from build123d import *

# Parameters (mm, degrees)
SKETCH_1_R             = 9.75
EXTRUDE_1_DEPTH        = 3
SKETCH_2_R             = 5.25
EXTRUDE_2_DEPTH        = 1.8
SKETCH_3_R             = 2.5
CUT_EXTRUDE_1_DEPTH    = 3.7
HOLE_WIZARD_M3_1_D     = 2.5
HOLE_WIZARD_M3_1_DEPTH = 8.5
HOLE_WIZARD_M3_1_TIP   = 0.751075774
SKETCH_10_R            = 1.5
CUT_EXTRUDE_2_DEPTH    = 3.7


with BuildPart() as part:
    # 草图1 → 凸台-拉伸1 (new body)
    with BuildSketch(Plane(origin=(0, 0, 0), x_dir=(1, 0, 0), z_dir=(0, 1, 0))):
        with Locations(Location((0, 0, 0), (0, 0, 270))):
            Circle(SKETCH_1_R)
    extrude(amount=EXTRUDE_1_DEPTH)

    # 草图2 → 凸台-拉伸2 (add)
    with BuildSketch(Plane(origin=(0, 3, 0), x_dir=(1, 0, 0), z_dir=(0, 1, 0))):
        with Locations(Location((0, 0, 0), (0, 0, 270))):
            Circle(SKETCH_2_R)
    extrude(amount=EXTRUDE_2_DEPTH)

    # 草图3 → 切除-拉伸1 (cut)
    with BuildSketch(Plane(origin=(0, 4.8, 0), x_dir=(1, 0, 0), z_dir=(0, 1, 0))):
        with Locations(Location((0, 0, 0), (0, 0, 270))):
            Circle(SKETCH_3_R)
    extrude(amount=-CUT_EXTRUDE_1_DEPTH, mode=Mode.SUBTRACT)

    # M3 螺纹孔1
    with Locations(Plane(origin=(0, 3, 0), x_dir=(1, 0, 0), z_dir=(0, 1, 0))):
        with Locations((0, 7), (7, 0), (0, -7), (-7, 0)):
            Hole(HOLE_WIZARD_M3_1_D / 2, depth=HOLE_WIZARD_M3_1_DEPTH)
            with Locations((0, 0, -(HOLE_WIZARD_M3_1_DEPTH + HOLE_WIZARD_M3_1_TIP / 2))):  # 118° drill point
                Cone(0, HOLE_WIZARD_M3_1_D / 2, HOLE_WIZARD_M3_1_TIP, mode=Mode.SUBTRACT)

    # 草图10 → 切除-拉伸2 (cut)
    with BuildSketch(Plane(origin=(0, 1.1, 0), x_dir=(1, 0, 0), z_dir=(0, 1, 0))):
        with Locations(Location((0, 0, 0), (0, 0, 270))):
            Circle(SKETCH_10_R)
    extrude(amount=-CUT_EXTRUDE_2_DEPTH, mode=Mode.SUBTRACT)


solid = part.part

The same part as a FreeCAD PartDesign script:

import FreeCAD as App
import Part
import Sketcher

V = App.Vector
Q = App.Units.Quantity

doc = App.newDocument("Part")
body = doc.addObject("PartDesign::Body", "Body")

# Sketch on XZ plane
sketch1 = doc.addObject("Sketcher::SketchObject", "Sketch")
body.addObject(sketch1)
sketch1.AttachmentSupport = (doc.XZ_Plane, [""])
sketch1.MapMode = "FlatFace"
sketch1.addGeometry(Part.Circle(V(0, 0, 0), V(0, 0, 1), 10), False)
sketch1.addConstraint(Sketcher.Constraint("Coincident", 0, 3, -1, 1))
sketch1.addConstraint(Sketcher.Constraint("Diameter", 0, Q("19.5 mm")))
pad1 = doc.addObject("PartDesign::Pad", "Pad")
body.addObject(pad1)
pad1.Profile = sketch1
pad1.Length = 3
pad1.Reversed = True

# Sketch on XZ plane
sketch2 = doc.addObject("Sketcher::SketchObject", "Sketch001")
body.addObject(sketch2)
sketch2.AttachmentSupport = (doc.XZ_Plane, [""])
sketch2.MapMode = "FlatFace"
sketch2.AttachmentOffset = App.Placement(V(0, 0, -3), App.Rotation())
sketch2.addGeometry(Part.Circle(V(0, 0, 0), V(0, 0, 1), 5), False)
sketch2.addConstraint(Sketcher.Constraint("Coincident", 0, 3, -1, 1))
sketch2.addConstraint(Sketcher.Constraint("Diameter", 0, Q("10.5 mm")))
pad2 = doc.addObject("PartDesign::Pad", "Pad001")
body.addObject(pad2)
pad2.Profile = sketch2
pad2.Length = 1.8
pad2.Reversed = True

# Sketch on XZ plane
sketch3 = doc.addObject("Sketcher::SketchObject", "Sketch002")
body.addObject(sketch3)
sketch3.AttachmentSupport = (doc.XZ_Plane, [""])
sketch3.MapMode = "FlatFace"
sketch3.AttachmentOffset = App.Placement(V(0, 0, -4.8), App.Rotation())
sketch3.addGeometry(Part.Circle(V(0, 0, 0), V(0, 0, 1), 2.5), False)
sketch3.addConstraint(Sketcher.Constraint("Coincident", 0, 3, -1, 1))
sketch3.addConstraint(Sketcher.Constraint("Diameter", 0, Q("5 mm")))
pocket1 = doc.addObject("PartDesign::Pocket", "Pocket")
body.addObject(pocket1)
pocket1.Profile = sketch3
pocket1.Length = 3.7
pocket1.Reversed = True

# Sketch on XZ plane
sketch4 = doc.addObject("Sketcher::SketchObject", "Sketch003")
body.addObject(sketch4)
sketch4.AttachmentSupport = (doc.XZ_Plane, [""])
sketch4.MapMode = "FlatFace"
sketch4.AttachmentOffset = App.Placement(V(0, 0, -3), App.Rotation())
sketch4.addGeometry(Part.Circle(V(0, -7, 0), V(0, 0, 1), 1.2), False)
sketch4.addGeometry(Part.Circle(V(7, 0, 0), V(0, 0, 1), 1.2), False)
sketch4.addGeometry(Part.Circle(V(0, 7, 0), V(0, 0, 1), 1.2), False)
sketch4.addGeometry(Part.Circle(V(-7, 0, 0), V(0, 0, 1), 1.2), False)
sketch4.addConstraint(Sketcher.Constraint("Equal", 0, 1))
sketch4.addConstraint(Sketcher.Constraint("Equal", 1, 2))
sketch4.addConstraint(Sketcher.Constraint("Equal", 2, 3))
sketch4.addConstraint(Sketcher.Constraint("Symmetric", 0, 3, 2, 3, -1, 1))
sketch4.addConstraint(Sketcher.Constraint("Symmetric", 1, 3, 3, 3, -1, 1))
sketch4.addConstraint(Sketcher.Constraint("PointOnObject", 0, 3, -2))
sketch4.addConstraint(Sketcher.Constraint("PointOnObject", 1, 3, -1))
sketch4.addConstraint(Sketcher.Constraint("Diameter", 0, Q("2.5 mm")))
sketch4.addConstraint(Sketcher.Constraint("DistanceY", 0, 3, -1, 1, Q("7 mm")))
sketch4.addConstraint(Sketcher.Constraint("DistanceX", -1, 1, 1, 3, Q("7 mm")))
doc.recompute()
hole = doc.addObject("PartDesign::Hole", "Hole")
body.addObject(hole)
hole.Profile = sketch4
hole.ThreadType = "None"
hole.Diameter = 2.5
hole.DepthType = "Dimension"
hole.Depth = 8.5
hole.DrillPoint = "Angled"
hole.DrillPointAngle = 118
hole.Reversed = True

# Sketch on XZ plane
sketch5 = doc.addObject("Sketcher::SketchObject", "Sketch004")
body.addObject(sketch5)
sketch5.AttachmentSupport = (doc.XZ_Plane, [""])
sketch5.MapMode = "FlatFace"
sketch5.AttachmentOffset = App.Placement(V(0, 0, -1.1), App.Rotation())
sketch5.addGeometry(Part.Circle(V(0, 0, 0), V(0, 0, 1), 1.5), False)
sketch5.addConstraint(Sketcher.Constraint("Coincident", 0, 3, -1, 1))
sketch5.addConstraint(Sketcher.Constraint("Diameter", 0, Q("3 mm")))
pocket2 = doc.addObject("PartDesign::Pocket", "Pocket001")
body.addObject(pocket2)
pocket2.Profile = sketch5
pocket2.Length = 3.7
pocket2.Reversed = True

doc.recompute()
